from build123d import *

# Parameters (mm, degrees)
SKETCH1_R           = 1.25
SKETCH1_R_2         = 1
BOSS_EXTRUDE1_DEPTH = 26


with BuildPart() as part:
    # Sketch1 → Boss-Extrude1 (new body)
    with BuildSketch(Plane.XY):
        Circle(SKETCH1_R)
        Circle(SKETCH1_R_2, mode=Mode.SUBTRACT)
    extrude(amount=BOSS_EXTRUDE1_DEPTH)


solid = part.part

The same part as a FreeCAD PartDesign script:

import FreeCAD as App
import Part
import Sketcher
from FreeCAD import Vector

doc = App.newDocument("Part")
body = doc.addObject("PartDesign::Body", "Body")

# Sketch on XY plane
sketch1 = body.newObject("Sketcher::SketchObject", "Sketch")
sketch1.AttachmentSupport = (doc.getObject("XY_Plane"), [""])
sketch1.MapMode = "FlatFace"
sketch1.addGeometry(Part.Circle(Vector(0, 0, 0), Vector(0, 0, 1), 1.2), False)
sketch1.addGeometry(Part.Circle(Vector(0, 0, 0), Vector(0, 0, 1), 1), False)
sketch1.addConstraint(Sketcher.Constraint("Coincident", 0, 3, -1, 1))
sketch1.addConstraint(Sketcher.Constraint("Coincident", 1, 3, -1, 1))
sketch1.addConstraint(Sketcher.Constraint("Diameter", 1, 2.0))
sketch1.addConstraint(Sketcher.Constraint("Diameter", 0, 2.5))
pad1 = body.newObject("PartDesign::Pad", "Pad")
pad1.Profile = sketch1
pad1.Length = 26

doc.recompute()
